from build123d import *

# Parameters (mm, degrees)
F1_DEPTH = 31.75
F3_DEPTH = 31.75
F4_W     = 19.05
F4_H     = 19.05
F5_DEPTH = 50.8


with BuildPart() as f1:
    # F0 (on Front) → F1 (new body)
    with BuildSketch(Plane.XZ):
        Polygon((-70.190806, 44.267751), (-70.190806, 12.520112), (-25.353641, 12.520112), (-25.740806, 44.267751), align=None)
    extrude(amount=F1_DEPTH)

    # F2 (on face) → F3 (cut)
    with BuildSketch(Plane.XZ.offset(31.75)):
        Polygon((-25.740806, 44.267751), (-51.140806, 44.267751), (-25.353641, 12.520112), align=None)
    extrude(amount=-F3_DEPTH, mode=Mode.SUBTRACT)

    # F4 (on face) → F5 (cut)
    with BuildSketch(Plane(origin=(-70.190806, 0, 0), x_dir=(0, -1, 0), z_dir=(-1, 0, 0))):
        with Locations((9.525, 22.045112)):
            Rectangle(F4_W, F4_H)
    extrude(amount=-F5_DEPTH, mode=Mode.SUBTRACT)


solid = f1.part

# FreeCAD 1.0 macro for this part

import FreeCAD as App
import Part
import Sketcher
from FreeCAD import Vector
Q = App.Units.Quantity

doc = App.newDocument("Part")
body = doc.addObject("PartDesign::Body", "Body")

sketch1 = body.newObject("Sketcher::SketchObject", "Sketch")
sketch1.AttachmentSupport = (doc.getObject("XZ_Plane"), [""])
sketch1.MapMode = "FlatFace"
sketch1.addGeometry([
    Part.LineSegment(Vector(-70.190806, 44.267751, 0), Vector(-70.190806, 12.520112, 0)),
    Part.LineSegment(Vector(-70.190806, 12.520112, 0), Vector(-25.353641, 12.520112, 0)),
    Part.LineSegment(Vector(-25.353641, 12.520112, 0), Vector(-25.740806, 44.267751, 0)),
    Part.LineSegment(Vector(-25.740806, 44.267751, 0), Vector(-70.190806, 44.267751, 0)),
], False)
sketch1.addConstraint([
    Sketcher.Constraint("Coincident", 0, 2, 1, 1),
    Sketcher.Constraint("Coincident", 1, 2, 2, 1),
    Sketcher.Constraint("Coincident", 2, 2, 3, 1),
    Sketcher.Constraint("Coincident", 3, 2, 0, 1),
    Sketcher.Constraint("Vertical", 0),
    Sketcher.Constraint("Horizontal", 1),
    Sketcher.Constraint("Horizontal", 3),
    Sketcher.Constraint("DistanceX", 3, 2, 3, 1, Q("1.75 in")),
    Sketcher.Constraint("Distance", 2, Q("1.25 in")),
    Sketcher.Constraint("DistanceY", 0, 2, 0, 1, 31.747639),
    Sketcher.Constraint("DistanceY", -1, 1, 0, 2, 12.520112),
    Sketcher.Constraint("DistanceX", 1, 2, -1, 1, 25.353641),
])
pad1 = body.newObject("PartDesign::Pad", "Pad")
pad1.Profile = sketch1
pad1.Length = Q("1.25 in")

sketch2 = body.newObject("Sketcher::SketchObject", "Sketch001")
sketch2.AttachmentSupport = (doc.getObject("XZ_Plane"), [""])
sketch2.MapMode = "FlatFace"
sketch2.AttachmentOffset = App.Placement(Vector(0, 0, 1.25 * 25.4), App.Rotation())
sketch2.addGeometry([
    Part.LineSegment(Vector(-25.740806, 44.267751, 0), Vector(-51.140806, 44.267751, 0)),
    Part.LineSegment(Vector(-51.140806, 44.267751, 0), Vector(-25.353641, 12.520112, 0)),
    Part.LineSegment(Vector(-25.353641, 12.520112, 0), Vector(-25.740806, 44.267751, 0)),
], False)
sketch2.addConstraint([
    Sketcher.Constraint("Coincident", 0, 2, 1, 1),
    Sketcher.Constraint("Coincident", 1, 2, 2, 1),
    Sketcher.Constraint("Coincident", 2, 2, 0, 1),
    Sketcher.Constraint("Horizontal", 0),
    Sketcher.Constraint("DistanceX", 0, 2, 0, 1, Q("1 in")),
    Sketcher.Constraint("Distance", 2, Q("1.25 in")),
    Sketcher.Constraint("DistanceY", -1, 1, 0, 2, 44.267751),
    Sketcher.Constraint("DistanceX", 1, 2, -1, 1, 25.353641),
    Sketcher.Constraint("DistanceY", -1, 1, 1, 2, 12.520112),
])
pocket1 = body.newObject("PartDesign::Pocket", "Pocket")
pocket1.Profile = sketch2
pocket1.Length = Q("1.25 in")

sketch3 = body.newObject("Sketcher::SketchObject", "Sketch002")
sketch3.AttachmentSupport = (doc.getObject("YZ_Plane"), [""])
sketch3.MapMode = "FlatFace"
sketch3.AttachmentOffset = App.Placement(Vector(0, 0, -70.190806), App.Rotation())
sketch3.addGeometry([
    Part.LineSegment(Vector(0, 31.570112, 0), Vector(0, 12.520112, 0)),
    Part.LineSegment(Vector(0, 12.520112, 0), Vector(-19.05, 12.520112, 0)),
    Part.LineSegment(Vector(-19.05, 12.520112, 0), Vector(-19.05, 31.570112, 0)),
    Part.LineSegment(Vector(-19.05, 31.570112, 0), Vector(0, 31.570112, 0)),
], False)
sketch3.addConstraint([
    Sketcher.Constraint("Coincident", 0, 2, 1, 1),
    Sketcher.Constraint("Coincident", 1, 2, 2, 1),
    Sketcher.Constraint("Coincident", 2, 2, 3, 1),
    Sketcher.Constraint("Coincident", 3, 2, 0, 1),
    Sketcher.Constraint("Vertical", 0),
    Sketcher.Constraint("Horizontal", 1),
    Sketcher.Constraint("Vertical", 2),
    Sketcher.Constraint("Horizontal", 3),
    Sketcher.Constraint("PointOnObject", 0, 2, -2),
    Sketcher.Constraint("Equal", 3, 0),
    Sketcher.Constraint("DistanceX", 1, 2, 1, 1, Q("0.75 in")),
    Sketcher.Constraint("DistanceY", -1, 1, 0, 2, 12.520112),
])
pocket2 = body.newObject("PartDesign::Pocket", "Pocket001")
pocket2.Profile = sketch3
pocket2.Length = Q("2 in")
pocket2.Reversed = True

doc.recompute()
